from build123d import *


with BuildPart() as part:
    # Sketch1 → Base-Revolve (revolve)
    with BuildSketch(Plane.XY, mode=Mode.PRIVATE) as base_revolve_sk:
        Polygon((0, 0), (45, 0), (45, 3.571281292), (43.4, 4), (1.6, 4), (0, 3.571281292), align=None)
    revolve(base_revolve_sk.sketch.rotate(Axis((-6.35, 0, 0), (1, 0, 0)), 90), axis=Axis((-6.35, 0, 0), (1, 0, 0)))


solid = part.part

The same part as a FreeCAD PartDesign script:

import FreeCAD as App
import Part
import Sketcher
Q = App.Units.Quantity

doc = App.newDocument("Part")
body = doc.addObject("PartDesign::Body", "Body")

sketch1 = doc.addObject("Sketcher::SketchObject", "Sketch")
body.addObject(sketch1)
sketch1.AttachmentSupport = (doc.XY_Plane, [""])
sketch1.MapMode = "FlatFace"
sketch1.addGeometry([
    Part.LineSegment(App.Vector(0, 0, 0), App.Vector(45, 0, 0)),
    Part.LineSegment(App.Vector(45, 0, 0), App.Vector(45, 3.571281, 0)),
    Part.LineSegment(App.Vector(45, 3.571281, 0), App.Vector(43.4, 4, 0)),
    Part.LineSegment(App.Vector(43.4, 4, 0), App.Vector(1.6, 4, 0)),
    Part.LineSegment(App.Vector(1.6, 4, 0), App.Vector(0, 3.571281, 0)),
    Part.LineSegment(App.Vector(0, 3.571281, 0), App.Vector(0, 0, 0)),
], False)
sketch1.addConstraint([
    Sketcher.Constraint("Coincident", 0, 2, 1, 1),
    Sketcher.Constraint("Coincident", 1, 2, 2, 1),
    Sketcher.Constraint("Coincident", 2, 2, 3, 1),
    Sketcher.Constraint("Coincident", 3, 2, 4, 1),
    Sketcher.Constraint("Coincident", 4, 2, 5, 1),
    Sketcher.Constraint("Coincident", 5, 2, 0, 1),
    Sketcher.Constraint("Horizontal", 0),
    Sketcher.Constraint("Vertical", 1),
    Sketcher.Constraint("Horizontal", 3),
    Sketcher.Constraint("Vertical", 5),
    Sketcher.Constraint("Coincident", 5, 2, -1, 1),
    Sketcher.Constraint("Horizontal", 1, 2, 4, 2),
    Sketcher.Constraint("Equal", 2, 4),
    Sketcher.Constraint("DistanceX", 0, 1, 0, 2, Q("45 mm")),
    Sketcher.Constraint("Angle", 2, Q("165 deg")),
    Sketcher.Constraint("DistanceX", 3, 2, 3, 1, Q("41.8 mm")),
    Sketcher.Constraint("DistanceY", -1, 1, 2, 2, Q("4 mm")),
])
revolution = doc.addObject("PartDesign::Revolution", "Revolution")
body.addObject(revolution)
revolution.Profile = sketch1
revolution.ReferenceAxis = (sketch1, ["H_Axis"])
revolution.Angle = 360

doc.recompute()
